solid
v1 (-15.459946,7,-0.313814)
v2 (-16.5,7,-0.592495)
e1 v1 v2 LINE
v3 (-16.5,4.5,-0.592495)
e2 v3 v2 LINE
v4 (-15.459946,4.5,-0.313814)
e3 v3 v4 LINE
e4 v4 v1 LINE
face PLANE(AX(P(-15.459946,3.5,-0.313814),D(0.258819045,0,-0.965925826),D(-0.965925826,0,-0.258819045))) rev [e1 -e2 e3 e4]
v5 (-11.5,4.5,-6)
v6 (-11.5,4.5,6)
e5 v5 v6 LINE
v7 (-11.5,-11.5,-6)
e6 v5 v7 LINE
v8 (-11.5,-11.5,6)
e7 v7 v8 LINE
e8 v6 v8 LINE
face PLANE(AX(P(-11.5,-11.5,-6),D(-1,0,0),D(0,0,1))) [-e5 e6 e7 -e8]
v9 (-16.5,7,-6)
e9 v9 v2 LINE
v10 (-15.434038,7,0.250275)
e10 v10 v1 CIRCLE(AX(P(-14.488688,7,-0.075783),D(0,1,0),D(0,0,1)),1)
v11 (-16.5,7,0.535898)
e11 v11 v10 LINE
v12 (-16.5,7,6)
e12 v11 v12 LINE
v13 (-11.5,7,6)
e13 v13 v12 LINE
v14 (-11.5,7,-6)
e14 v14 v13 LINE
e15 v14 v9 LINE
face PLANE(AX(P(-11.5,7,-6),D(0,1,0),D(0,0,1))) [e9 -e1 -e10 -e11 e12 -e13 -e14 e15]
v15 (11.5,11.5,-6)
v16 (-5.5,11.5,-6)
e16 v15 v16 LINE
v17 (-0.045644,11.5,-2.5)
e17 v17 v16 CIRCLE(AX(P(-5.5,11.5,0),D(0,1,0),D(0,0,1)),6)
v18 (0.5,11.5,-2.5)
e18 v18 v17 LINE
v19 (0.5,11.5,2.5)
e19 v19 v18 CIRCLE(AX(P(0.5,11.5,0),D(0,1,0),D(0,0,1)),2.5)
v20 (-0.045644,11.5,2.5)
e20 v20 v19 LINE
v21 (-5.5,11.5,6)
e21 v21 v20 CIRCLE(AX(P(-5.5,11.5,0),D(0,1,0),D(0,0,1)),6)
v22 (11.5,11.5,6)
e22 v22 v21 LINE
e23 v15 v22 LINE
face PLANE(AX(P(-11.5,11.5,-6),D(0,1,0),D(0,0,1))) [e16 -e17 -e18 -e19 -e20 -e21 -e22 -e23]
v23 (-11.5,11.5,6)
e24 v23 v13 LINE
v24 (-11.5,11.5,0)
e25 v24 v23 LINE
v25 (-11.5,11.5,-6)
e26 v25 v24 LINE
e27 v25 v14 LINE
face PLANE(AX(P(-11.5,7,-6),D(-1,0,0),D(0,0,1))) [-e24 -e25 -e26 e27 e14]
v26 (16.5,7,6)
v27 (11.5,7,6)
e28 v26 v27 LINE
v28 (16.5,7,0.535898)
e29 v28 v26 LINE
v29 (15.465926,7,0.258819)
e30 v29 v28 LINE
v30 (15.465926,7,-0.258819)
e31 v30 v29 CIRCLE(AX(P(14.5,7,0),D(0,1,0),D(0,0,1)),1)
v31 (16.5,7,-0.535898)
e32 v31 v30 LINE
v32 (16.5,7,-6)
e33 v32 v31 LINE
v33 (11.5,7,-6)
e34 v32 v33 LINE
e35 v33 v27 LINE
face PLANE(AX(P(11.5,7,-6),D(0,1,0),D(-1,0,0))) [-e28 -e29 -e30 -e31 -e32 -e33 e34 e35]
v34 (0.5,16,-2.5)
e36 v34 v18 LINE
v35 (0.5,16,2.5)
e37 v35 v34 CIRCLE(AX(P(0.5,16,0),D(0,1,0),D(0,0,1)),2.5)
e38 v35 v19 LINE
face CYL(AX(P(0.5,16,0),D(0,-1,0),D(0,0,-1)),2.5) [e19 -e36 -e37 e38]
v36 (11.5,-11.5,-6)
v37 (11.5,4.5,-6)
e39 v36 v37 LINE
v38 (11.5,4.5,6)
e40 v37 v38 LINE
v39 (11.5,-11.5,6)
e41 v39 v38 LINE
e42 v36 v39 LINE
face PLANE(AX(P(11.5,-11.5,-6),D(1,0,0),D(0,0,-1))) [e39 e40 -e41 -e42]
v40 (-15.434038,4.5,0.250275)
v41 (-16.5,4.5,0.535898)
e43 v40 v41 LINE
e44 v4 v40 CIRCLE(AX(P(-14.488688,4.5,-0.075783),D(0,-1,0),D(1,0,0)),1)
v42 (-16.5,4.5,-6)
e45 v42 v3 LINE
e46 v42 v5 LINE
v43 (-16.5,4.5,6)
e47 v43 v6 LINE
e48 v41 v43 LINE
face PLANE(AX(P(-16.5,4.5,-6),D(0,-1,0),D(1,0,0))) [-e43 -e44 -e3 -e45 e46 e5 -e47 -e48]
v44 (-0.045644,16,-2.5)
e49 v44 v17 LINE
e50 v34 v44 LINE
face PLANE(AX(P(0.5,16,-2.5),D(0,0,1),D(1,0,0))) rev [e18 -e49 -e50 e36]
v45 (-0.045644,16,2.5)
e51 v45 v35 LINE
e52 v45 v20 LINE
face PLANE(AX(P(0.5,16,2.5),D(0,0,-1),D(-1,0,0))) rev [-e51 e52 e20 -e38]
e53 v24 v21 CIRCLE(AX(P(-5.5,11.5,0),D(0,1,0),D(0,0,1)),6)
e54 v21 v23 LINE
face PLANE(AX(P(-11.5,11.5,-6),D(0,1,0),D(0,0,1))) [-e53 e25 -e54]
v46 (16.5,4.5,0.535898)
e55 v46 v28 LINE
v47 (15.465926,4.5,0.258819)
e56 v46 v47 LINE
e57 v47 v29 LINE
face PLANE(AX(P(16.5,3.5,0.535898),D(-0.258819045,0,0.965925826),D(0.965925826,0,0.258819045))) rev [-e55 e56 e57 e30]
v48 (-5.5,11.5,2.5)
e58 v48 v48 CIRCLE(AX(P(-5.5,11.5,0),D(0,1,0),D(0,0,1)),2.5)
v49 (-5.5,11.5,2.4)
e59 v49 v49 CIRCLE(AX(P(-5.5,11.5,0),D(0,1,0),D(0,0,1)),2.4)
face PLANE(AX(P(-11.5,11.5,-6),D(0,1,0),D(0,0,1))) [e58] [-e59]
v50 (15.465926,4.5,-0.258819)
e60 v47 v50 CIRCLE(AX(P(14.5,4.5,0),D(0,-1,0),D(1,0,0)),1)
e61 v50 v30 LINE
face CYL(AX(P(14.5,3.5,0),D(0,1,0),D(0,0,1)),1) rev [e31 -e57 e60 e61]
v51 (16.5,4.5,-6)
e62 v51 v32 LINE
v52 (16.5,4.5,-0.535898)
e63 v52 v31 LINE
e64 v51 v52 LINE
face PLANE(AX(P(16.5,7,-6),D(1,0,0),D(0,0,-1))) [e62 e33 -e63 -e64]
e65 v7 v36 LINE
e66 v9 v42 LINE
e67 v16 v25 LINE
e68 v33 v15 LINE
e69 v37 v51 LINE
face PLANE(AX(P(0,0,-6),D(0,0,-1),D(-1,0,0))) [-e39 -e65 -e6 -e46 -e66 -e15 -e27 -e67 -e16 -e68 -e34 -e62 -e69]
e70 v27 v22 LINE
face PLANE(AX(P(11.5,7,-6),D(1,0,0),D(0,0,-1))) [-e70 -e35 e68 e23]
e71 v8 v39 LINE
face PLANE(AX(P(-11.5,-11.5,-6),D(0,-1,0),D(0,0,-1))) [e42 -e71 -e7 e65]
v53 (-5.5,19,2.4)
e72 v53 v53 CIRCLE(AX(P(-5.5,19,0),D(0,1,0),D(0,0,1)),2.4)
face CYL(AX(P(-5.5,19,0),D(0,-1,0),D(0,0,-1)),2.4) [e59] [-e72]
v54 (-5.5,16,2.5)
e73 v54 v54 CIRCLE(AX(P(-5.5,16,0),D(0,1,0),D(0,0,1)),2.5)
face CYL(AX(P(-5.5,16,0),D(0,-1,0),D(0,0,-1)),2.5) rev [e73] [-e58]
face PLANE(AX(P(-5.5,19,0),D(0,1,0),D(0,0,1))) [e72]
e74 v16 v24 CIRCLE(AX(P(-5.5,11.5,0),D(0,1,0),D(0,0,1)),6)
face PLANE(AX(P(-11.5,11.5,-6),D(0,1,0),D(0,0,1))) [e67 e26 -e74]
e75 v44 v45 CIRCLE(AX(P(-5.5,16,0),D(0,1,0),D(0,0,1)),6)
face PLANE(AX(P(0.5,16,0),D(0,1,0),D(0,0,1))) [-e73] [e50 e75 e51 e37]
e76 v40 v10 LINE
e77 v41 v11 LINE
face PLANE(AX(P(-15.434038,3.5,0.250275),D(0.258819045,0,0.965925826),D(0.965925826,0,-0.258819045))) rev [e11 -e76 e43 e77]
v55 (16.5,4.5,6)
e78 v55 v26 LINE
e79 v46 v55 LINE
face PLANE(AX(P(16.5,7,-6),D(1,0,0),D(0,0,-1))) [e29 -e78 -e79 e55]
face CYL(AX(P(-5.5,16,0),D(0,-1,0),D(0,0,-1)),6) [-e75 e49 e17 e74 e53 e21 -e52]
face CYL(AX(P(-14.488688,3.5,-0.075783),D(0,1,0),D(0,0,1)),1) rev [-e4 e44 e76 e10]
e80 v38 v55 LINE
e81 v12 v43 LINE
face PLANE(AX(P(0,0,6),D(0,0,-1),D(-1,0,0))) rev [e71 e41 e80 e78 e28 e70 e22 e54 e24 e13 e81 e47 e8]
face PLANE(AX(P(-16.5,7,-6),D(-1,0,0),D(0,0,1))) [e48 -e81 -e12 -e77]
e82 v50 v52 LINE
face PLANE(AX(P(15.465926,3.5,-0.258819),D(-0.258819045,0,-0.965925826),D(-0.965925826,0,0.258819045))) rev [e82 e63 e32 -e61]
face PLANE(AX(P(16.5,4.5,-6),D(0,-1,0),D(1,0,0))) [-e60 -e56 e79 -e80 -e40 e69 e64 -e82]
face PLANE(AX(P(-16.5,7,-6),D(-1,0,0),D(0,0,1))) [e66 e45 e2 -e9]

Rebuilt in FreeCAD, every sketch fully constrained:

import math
import FreeCAD as App
import Part
import Sketcher
Q = App.Units.Quantity

doc = App.newDocument("Part")
body = doc.addObject("PartDesign::Body", "Body")

sketch1 = body.newObject("Sketcher::SketchObject", "Sketch")
sketch1.AttachmentSupport = (doc.getObject("XY_Plane"), [""])
sketch1.MapMode = "FlatFace"
sketch1.addGeometry(Part.LineSegment(App.Vector(-11.5, 7, 0), App.Vector(-16.5, 7, 0)), False)
sketch1.addGeometry(Part.LineSegment(App.Vector(-16.5, 7, 0), App.Vector(-16.5, 4.5, 0)), False)
sketch1.addGeometry(Part.LineSegment(App.Vector(-16.5, 4.5, 0), App.Vector(-11.5, 4.5, 0)), False)
sketch1.addGeometry(Part.LineSegment(App.Vector(-11.5, 4.5, 0), App.Vector(-11.5, -11.5, 0)), False)
sketch1.addGeometry(Part.LineSegment(App.Vector(-11.5, -11.5, 0), App.Vector(11.5, -11.5, 0)), False)
sketch1.addGeometry(Part.LineSegment(App.Vector(11.5, -11.5, 0), App.Vector(11.5, 4.5, 0)), False)
sketch1.addGeometry(Part.LineSegment(App.Vector(11.5, 4.5, 0), App.Vector(16.5, 4.5, 0)), False)
sketch1.addGeometry(Part.LineSegment(App.Vector(16.5, 4.5, 0), App.Vector(16.5, 7, 0)), False)
sketch1.addGeometry(Part.LineSegment(App.Vector(16.5, 7, 0), App.Vector(11.5, 7, 0)), False)
sketch1.addGeometry(Part.LineSegment(App.Vector(11.5, 7, 0), App.Vector(11.5, 11.5, 0)), False)
sketch1.addGeometry(Part.LineSegment(App.Vector(11.5, 11.5, 0), App.Vector(-11.5, 11.5, 0)), False)
sketch1.addGeometry(Part.LineSegment(App.Vector(-11.5, 11.5, 0), App.Vector(-11.5, 7, 0)), False)
sketch1.addConstraint(Sketcher.Constraint("Coincident", 0, 2, 1, 1))
sketch1.addConstraint(Sketcher.Constraint("Coincident", 1, 2, 2, 1))
sketch1.addConstraint(Sketcher.Constraint("Coincident", 2, 2, 3, 1))
sketch1.addConstraint(Sketcher.Constraint("Coincident", 3, 2, 4, 1))
sketch1.addConstraint(Sketcher.Constraint("Coincident", 4, 2, 5, 1))
sketch1.addConstraint(Sketcher.Constraint("Coincident", 5, 2, 6, 1))
sketch1.addConstraint(Sketcher.Constraint("Coincident", 6, 2, 7, 1))
sketch1.addConstraint(Sketcher.Constraint("Coincident", 7, 2, 8, 1))
sketch1.addConstraint(Sketcher.Constraint("Coincident", 8, 2, 9, 1))
sketch1.addConstraint(Sketcher.Constraint("Coincident", 9, 2, 10, 1))
sketch1.addConstraint(Sketcher.Constraint("Coincident", 10, 2, 11, 1))
sketch1.addConstraint(Sketcher.Constraint("Coincident", 11, 2, 0, 1))
sketch1.addConstraint(Sketcher.Constraint("Horizontal", 0))
sketch1.addConstraint(Sketcher.Constraint("Vertical", 1))
sketch1.addConstraint(Sketcher.Constraint("Horizontal", 2))
sketch1.addConstraint(Sketcher.Constraint("Vertical", 3))
sketch1.addConstraint(Sketcher.Constraint("Horizontal", 4))
sketch1.addConstraint(Sketcher.Constraint("Vertical", 5))
sketch1.addConstraint(Sketcher.Constraint("Horizontal", 6))
sketch1.addConstraint(Sketcher.Constraint("Vertical", 7))
sketch1.addConstraint(Sketcher.Constraint("Horizontal", 8))
sketch1.addConstraint(Sketcher.Constraint("Vertical", 9))
sketch1.addConstraint(Sketcher.Constraint("Horizontal", 10))
sketch1.addConstraint(Sketcher.Constraint("Vertical", 11))
sketch1.addConstraint(Sketcher.Constraint("Symmetric", 3, 2, 9, 2, -1, 1))
sketch1.addConstraint(Sketcher.Constraint("Symmetric", 2, 2, 5, 2, -2))
sketch1.addConstraint(Sketcher.Constraint("Symmetric", 0, 2, 7, 2, -2))
sketch1.addConstraint(Sketcher.Constraint("Vertical", 3, 2, 10, 2))
sketch1.addConstraint(Sketcher.Constraint("DistanceX", 0, 2, 0, 1, Q("5 mm")))
sketch1.addConstraint(Sketcher.Constraint("DistanceX", 4, 1, 4, 2, Q("23 mm")))
sketch1.addConstraint(Sketcher.Constraint("DistanceY", 3, 2, 3, 1, Q("16 mm")))
sketch1.addConstraint(Sketcher.Constraint("DistanceY", 1, 2, 1, 1, Q("2.5 mm")))
sketch1.addConstraint(Sketcher.Constraint("DistanceY", 9, 1, 9, 2, Q("4.5 mm")))
pad1 = body.newObject("PartDesign::Pad", "Pad")
pad1.Profile = sketch1
pad1.Type = "TwoLengths"
pad1.Length = 6
pad1.Length2 = 6

sketch2 = body.newObject("Sketcher::SketchObject", "Sketch001")
sketch2.AttachmentSupport = (doc.getObject("XZ_Plane"), [""])
sketch2.MapMode = "FlatFace"
sketch2.AttachmentOffset = App.Placement(App.Vector(0, 0, -11.5), App.Rotation())
sketch2.addGeometry(Part.LineSegment(App.Vector(0.5, -2.5, 0), App.Vector(-0.045644, -2.5, 0)), False)
sketch2.addGeometry(Part.ArcOfCircle(Part.Circle(App.Vector(-5.5, 0, 0), App.Vector(0, 0, 1), 6), math.radians(24.624318), math.radians(335.375682)), False)
sketch2.addGeometry(Part.LineSegment(App.Vector(-0.045644, 2.5, 0), App.Vector(0.5, 2.5, 0)), False)
sketch2.addGeometry(Part.ArcOfCircle(Part.Circle(App.Vector(0.5, 0, 0), App.Vector(0, 0, 1), 2.5), math.radians(-90), math.radians(90)), False)
sketch2.addGeometry(Part.Circle(App.Vector(-5.5, 0, 0), App.Vector(0, 0, 1), 2.5), False)
sketch2.addConstraint(Sketcher.Constraint("Coincident", 0, 2, 1, 2))
sketch2.addConstraint(Sketcher.Constraint("Coincident", 1, 1, 2, 1))
sketch2.addConstraint(Sketcher.Constraint("Tangent", 2, 2, 3, 2))
sketch2.addConstraint(Sketcher.Constraint("Tangent", 3, 1, 0, 1))
sketch2.addConstraint(Sketcher.Constraint("Horizontal", 0))
sketch2.addConstraint(Sketcher.Constraint("Horizontal", 2))
sketch2.addConstraint(Sketcher.Constraint("Coincident", 4, 3, 1, 3))
sketch2.addConstraint(Sketcher.Constraint("Equal", 3, 4))
sketch2.addConstraint(Sketcher.Constraint("Symmetric", 0, 2, 1, 1, -1))
sketch2.addConstraint(Sketcher.Constraint("Diameter", 4, Q("5 mm")))
sketch2.addConstraint(Sketcher.Constraint("Radius", 1, Q("6 mm")))
sketch2.addConstraint(Sketcher.Constraint("DistanceX", 1, 3, 3, 3, Q("6 mm")))
sketch2.addConstraint(Sketcher.Constraint("DistanceX", 1, 3, -1, 1, Q("5.5 mm")))
pad2 = body.newObject("PartDesign::Pad", "Pad001")
pad2.Profile = sketch2
pad2.Length = 4.5
pad2.Reversed = True

sketch3 = body.newObject("Sketcher::SketchObject", "Sketch002")
sketch3.AttachmentSupport = (doc.getObject("XZ_Plane"), [""])
sketch3.MapMode = "FlatFace"
sketch3.AttachmentOffset = App.Placement(App.Vector(0, 0, -11.5), App.Rotation())
sketch3.addGeometry(Part.Circle(App.Vector(-5.5, 0, 0), App.Vector(0, 0, 1), 2.4), False)
sketch3.addConstraint(Sketcher.Constraint("PointOnObject", 0, 3, -1))
sketch3.addConstraint(Sketcher.Constraint("Diameter", 0, Q("4.8 mm")))
sketch3.addConstraint(Sketcher.Constraint("DistanceX", 0, 3, -1, 1, Q("5.5 mm")))
pad3 = body.newObject("PartDesign::Pad", "Pad002")
pad3.Profile = sketch3
pad3.Length = 7.5
pad3.Reversed = True

sketch4 = body.newObject("Sketcher::SketchObject", "Sketch003")
sketch4.AttachmentSupport = (doc.getObject("XZ_Plane"), [""])
sketch4.MapMode = "FlatFace"
sketch4.AttachmentOffset = App.Placement(App.Vector(0, 0, -7), App.Rotation())
sketch4.addGeometry(Part.LineSegment(App.Vector(-16.5, -0.592495, 0), App.Vector(-16.5, 0.535898, 0)), False)
sketch4.addGeometry(Part.LineSegment(App.Vector(-16.5, 0.535898, 0), App.Vector(-15.434038, 0.250275, 0)), False)
sketch4.addGeometry(Part.ArcOfCircle(Part.Circle(App.Vector(-14.488688, -0.075783, 0), App.Vector(0, 0, 1), 1), math.radians(-166.229651), math.radians(160.970339)), False)
sketch4.addGeometry(Part.LineSegment(App.Vector(-15.459946, -0.313814, 0), App.Vector(-16.5, -0.592495, 0)), False)
sketch4.addGeometry(Part.LineSegment(App.Vector(16.5, -0.535898, 0), App.Vector(15.465926, -0.258819, 0)), False)
sketch4.addGeometry(Part.ArcOfCircle(Part.Circle(App.Vector(14.5, 0, 0), App.Vector(0, 0, 1), 1), math.radians(15), math.radians(345)), False)
sketch4.addGeometry(Part.LineSegment(App.Vector(15.465926, 0.258819, 0), App.Vector(16.5, 0.535898, 0)), False)
sketch4.addGeometry(Part.LineSegment(App.Vector(16.5, 0.535898, 0), App.Vector(16.5, -0.535898, 0)), False)
sketch4.addConstraint(Sketcher.Constraint("Coincident", 0, 2, 1, 1))
sketch4.addConstraint(Sketcher.Constraint("Coincident", 1, 2, 2, 2))
sketch4.addConstraint(Sketcher.Constraint("Coincident", 2, 1, 3, 1))
sketch4.addConstraint(Sketcher.Constraint("Coincident", 3, 2, 0, 1))
sketch4.addConstraint(Sketcher.Constraint("Coincident", 4, 2, 5, 2))
sketch4.addConstraint(Sketcher.Constraint("Coincident", 5, 1, 6, 1))
sketch4.addConstraint(Sketcher.Constraint("Coincident", 6, 2, 7, 1))
sketch4.addConstraint(Sketcher.Constraint("Coincident", 7, 2, 4, 1))
sketch4.addConstraint(Sketcher.Constraint("Vertical", 0))
sketch4.addConstraint(Sketcher.Constraint("Vertical", 7))
sketch4.addConstraint(Sketcher.Constraint("Equal", 2, 5))
sketch4.addConstraint(Sketcher.Constraint("Symmetric", 0, 2, 7, 2, -1, 1))
sketch4.addConstraint(Sketcher.Constraint("Symmetric", 4, 2, 5, 1, -1))
sketch4.addConstraint(Sketcher.Constraint("Parallel", 1, 4))
sketch4.addConstraint(Sketcher.Constraint("Parallel", 3, 6))
sketch4.addConstraint(Sketcher.Constraint("Horizontal", 0, 2, 6, 2))
sketch4.addConstraint(Sketcher.Constraint("Radius", 2, Q("1 mm")))
sketch4.addConstraint(Sketcher.Constraint("Angle", 1, Q("-15 deg")))
sketch4.addConstraint(Sketcher.Constraint("DistanceX", 0, 2, 5, 3, Q("31 mm")))
sketch4.addConstraint(Sketcher.Constraint("DistanceX", 5, 3, 6, 2, Q("2 mm")))
sketch4.addConstraint(Sketcher.Constraint("DistanceY", -1, 1, 0, 2, Q("0.535898 mm")))
sketch4.addConstraint(Sketcher.Constraint("DistanceY", 2, 3, 5, 1, Q("0.334602 mm")))
sketch4.addConstraint(Sketcher.Constraint("DistanceY", 0, 1, 0, 2, Q("1.128394 mm")))
sketch4.addConstraint(Sketcher.Constraint("DistanceX", 2, 3, -1, 1, Q("14.488688 mm")))
pocket1 = body.newObject("PartDesign::Pocket", "Pocket")
pocket1.Profile = sketch4
pocket1.Length = 3.5
pocket1.Reversed = True

doc.recompute()
